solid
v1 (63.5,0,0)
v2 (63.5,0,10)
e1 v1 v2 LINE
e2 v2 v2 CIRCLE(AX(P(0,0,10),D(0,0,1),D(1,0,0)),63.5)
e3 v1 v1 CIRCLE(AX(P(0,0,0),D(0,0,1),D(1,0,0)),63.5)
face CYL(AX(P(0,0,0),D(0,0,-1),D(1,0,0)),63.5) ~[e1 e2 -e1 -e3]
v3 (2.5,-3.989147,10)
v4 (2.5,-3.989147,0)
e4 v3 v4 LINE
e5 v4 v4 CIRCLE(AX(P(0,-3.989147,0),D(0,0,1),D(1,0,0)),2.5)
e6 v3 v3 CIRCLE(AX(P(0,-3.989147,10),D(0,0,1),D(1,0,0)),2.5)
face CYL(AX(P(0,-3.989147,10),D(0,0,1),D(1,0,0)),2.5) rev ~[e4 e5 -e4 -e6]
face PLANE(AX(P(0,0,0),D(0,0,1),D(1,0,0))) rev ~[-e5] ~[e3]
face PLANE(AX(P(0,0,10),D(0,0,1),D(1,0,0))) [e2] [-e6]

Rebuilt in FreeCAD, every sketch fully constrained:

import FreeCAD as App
import Part
import Sketcher

V = App.Vector

doc = App.newDocument("Part")
body = doc.addObject("PartDesign::Body", "Body")

# Sketch on XY plane
sketch1 = body.newObject("Sketcher::SketchObject", "Sketch")
sketch1.AttachmentSupport = (doc.getObject("XY_Plane"), [""])
sketch1.MapMode = "FlatFace"
sketch1.addGeometry(Part.Circle(V(0, 0, 0), V(0, 0, 1), 64), False)
sketch1.addConstraint([
    Sketcher.Constraint("Coincident", 0, 3, -1, 1),
    Sketcher.Constraint("Diameter", 0, 127.0),
])
pad1 = body.newObject("PartDesign::Pad", "Pad")
pad1.Profile = sketch1
pad1.Length = 10

# Sketch on XY plane
sketch2 = body.newObject("Sketcher::SketchObject", "Sketch001")
sketch2.AttachmentSupport = (doc.getObject("XY_Plane"), [""])
sketch2.MapMode = "FlatFace"
sketch2.AttachmentOffset = App.Placement(V(0, 0, 10), App.Rotation())
sketch2.addGeometry(Part.Circle(V(0, -4, 0), V(0, 0, 1), 2.5), False)
sketch2.addConstraint([
    Sketcher.Constraint("PointOnObject", 0, 3, -2),
    Sketcher.Constraint("Diameter", 0, 5.0),
    Sketcher.Constraint("DistanceY", 0, 3, -1, 1, 3.989147),
])
pocket1 = body.newObject("PartDesign::Pocket", "Pocket")
pocket1.Profile = sketch2
pocket1.Type = "ThroughAll"

doc.recompute()
